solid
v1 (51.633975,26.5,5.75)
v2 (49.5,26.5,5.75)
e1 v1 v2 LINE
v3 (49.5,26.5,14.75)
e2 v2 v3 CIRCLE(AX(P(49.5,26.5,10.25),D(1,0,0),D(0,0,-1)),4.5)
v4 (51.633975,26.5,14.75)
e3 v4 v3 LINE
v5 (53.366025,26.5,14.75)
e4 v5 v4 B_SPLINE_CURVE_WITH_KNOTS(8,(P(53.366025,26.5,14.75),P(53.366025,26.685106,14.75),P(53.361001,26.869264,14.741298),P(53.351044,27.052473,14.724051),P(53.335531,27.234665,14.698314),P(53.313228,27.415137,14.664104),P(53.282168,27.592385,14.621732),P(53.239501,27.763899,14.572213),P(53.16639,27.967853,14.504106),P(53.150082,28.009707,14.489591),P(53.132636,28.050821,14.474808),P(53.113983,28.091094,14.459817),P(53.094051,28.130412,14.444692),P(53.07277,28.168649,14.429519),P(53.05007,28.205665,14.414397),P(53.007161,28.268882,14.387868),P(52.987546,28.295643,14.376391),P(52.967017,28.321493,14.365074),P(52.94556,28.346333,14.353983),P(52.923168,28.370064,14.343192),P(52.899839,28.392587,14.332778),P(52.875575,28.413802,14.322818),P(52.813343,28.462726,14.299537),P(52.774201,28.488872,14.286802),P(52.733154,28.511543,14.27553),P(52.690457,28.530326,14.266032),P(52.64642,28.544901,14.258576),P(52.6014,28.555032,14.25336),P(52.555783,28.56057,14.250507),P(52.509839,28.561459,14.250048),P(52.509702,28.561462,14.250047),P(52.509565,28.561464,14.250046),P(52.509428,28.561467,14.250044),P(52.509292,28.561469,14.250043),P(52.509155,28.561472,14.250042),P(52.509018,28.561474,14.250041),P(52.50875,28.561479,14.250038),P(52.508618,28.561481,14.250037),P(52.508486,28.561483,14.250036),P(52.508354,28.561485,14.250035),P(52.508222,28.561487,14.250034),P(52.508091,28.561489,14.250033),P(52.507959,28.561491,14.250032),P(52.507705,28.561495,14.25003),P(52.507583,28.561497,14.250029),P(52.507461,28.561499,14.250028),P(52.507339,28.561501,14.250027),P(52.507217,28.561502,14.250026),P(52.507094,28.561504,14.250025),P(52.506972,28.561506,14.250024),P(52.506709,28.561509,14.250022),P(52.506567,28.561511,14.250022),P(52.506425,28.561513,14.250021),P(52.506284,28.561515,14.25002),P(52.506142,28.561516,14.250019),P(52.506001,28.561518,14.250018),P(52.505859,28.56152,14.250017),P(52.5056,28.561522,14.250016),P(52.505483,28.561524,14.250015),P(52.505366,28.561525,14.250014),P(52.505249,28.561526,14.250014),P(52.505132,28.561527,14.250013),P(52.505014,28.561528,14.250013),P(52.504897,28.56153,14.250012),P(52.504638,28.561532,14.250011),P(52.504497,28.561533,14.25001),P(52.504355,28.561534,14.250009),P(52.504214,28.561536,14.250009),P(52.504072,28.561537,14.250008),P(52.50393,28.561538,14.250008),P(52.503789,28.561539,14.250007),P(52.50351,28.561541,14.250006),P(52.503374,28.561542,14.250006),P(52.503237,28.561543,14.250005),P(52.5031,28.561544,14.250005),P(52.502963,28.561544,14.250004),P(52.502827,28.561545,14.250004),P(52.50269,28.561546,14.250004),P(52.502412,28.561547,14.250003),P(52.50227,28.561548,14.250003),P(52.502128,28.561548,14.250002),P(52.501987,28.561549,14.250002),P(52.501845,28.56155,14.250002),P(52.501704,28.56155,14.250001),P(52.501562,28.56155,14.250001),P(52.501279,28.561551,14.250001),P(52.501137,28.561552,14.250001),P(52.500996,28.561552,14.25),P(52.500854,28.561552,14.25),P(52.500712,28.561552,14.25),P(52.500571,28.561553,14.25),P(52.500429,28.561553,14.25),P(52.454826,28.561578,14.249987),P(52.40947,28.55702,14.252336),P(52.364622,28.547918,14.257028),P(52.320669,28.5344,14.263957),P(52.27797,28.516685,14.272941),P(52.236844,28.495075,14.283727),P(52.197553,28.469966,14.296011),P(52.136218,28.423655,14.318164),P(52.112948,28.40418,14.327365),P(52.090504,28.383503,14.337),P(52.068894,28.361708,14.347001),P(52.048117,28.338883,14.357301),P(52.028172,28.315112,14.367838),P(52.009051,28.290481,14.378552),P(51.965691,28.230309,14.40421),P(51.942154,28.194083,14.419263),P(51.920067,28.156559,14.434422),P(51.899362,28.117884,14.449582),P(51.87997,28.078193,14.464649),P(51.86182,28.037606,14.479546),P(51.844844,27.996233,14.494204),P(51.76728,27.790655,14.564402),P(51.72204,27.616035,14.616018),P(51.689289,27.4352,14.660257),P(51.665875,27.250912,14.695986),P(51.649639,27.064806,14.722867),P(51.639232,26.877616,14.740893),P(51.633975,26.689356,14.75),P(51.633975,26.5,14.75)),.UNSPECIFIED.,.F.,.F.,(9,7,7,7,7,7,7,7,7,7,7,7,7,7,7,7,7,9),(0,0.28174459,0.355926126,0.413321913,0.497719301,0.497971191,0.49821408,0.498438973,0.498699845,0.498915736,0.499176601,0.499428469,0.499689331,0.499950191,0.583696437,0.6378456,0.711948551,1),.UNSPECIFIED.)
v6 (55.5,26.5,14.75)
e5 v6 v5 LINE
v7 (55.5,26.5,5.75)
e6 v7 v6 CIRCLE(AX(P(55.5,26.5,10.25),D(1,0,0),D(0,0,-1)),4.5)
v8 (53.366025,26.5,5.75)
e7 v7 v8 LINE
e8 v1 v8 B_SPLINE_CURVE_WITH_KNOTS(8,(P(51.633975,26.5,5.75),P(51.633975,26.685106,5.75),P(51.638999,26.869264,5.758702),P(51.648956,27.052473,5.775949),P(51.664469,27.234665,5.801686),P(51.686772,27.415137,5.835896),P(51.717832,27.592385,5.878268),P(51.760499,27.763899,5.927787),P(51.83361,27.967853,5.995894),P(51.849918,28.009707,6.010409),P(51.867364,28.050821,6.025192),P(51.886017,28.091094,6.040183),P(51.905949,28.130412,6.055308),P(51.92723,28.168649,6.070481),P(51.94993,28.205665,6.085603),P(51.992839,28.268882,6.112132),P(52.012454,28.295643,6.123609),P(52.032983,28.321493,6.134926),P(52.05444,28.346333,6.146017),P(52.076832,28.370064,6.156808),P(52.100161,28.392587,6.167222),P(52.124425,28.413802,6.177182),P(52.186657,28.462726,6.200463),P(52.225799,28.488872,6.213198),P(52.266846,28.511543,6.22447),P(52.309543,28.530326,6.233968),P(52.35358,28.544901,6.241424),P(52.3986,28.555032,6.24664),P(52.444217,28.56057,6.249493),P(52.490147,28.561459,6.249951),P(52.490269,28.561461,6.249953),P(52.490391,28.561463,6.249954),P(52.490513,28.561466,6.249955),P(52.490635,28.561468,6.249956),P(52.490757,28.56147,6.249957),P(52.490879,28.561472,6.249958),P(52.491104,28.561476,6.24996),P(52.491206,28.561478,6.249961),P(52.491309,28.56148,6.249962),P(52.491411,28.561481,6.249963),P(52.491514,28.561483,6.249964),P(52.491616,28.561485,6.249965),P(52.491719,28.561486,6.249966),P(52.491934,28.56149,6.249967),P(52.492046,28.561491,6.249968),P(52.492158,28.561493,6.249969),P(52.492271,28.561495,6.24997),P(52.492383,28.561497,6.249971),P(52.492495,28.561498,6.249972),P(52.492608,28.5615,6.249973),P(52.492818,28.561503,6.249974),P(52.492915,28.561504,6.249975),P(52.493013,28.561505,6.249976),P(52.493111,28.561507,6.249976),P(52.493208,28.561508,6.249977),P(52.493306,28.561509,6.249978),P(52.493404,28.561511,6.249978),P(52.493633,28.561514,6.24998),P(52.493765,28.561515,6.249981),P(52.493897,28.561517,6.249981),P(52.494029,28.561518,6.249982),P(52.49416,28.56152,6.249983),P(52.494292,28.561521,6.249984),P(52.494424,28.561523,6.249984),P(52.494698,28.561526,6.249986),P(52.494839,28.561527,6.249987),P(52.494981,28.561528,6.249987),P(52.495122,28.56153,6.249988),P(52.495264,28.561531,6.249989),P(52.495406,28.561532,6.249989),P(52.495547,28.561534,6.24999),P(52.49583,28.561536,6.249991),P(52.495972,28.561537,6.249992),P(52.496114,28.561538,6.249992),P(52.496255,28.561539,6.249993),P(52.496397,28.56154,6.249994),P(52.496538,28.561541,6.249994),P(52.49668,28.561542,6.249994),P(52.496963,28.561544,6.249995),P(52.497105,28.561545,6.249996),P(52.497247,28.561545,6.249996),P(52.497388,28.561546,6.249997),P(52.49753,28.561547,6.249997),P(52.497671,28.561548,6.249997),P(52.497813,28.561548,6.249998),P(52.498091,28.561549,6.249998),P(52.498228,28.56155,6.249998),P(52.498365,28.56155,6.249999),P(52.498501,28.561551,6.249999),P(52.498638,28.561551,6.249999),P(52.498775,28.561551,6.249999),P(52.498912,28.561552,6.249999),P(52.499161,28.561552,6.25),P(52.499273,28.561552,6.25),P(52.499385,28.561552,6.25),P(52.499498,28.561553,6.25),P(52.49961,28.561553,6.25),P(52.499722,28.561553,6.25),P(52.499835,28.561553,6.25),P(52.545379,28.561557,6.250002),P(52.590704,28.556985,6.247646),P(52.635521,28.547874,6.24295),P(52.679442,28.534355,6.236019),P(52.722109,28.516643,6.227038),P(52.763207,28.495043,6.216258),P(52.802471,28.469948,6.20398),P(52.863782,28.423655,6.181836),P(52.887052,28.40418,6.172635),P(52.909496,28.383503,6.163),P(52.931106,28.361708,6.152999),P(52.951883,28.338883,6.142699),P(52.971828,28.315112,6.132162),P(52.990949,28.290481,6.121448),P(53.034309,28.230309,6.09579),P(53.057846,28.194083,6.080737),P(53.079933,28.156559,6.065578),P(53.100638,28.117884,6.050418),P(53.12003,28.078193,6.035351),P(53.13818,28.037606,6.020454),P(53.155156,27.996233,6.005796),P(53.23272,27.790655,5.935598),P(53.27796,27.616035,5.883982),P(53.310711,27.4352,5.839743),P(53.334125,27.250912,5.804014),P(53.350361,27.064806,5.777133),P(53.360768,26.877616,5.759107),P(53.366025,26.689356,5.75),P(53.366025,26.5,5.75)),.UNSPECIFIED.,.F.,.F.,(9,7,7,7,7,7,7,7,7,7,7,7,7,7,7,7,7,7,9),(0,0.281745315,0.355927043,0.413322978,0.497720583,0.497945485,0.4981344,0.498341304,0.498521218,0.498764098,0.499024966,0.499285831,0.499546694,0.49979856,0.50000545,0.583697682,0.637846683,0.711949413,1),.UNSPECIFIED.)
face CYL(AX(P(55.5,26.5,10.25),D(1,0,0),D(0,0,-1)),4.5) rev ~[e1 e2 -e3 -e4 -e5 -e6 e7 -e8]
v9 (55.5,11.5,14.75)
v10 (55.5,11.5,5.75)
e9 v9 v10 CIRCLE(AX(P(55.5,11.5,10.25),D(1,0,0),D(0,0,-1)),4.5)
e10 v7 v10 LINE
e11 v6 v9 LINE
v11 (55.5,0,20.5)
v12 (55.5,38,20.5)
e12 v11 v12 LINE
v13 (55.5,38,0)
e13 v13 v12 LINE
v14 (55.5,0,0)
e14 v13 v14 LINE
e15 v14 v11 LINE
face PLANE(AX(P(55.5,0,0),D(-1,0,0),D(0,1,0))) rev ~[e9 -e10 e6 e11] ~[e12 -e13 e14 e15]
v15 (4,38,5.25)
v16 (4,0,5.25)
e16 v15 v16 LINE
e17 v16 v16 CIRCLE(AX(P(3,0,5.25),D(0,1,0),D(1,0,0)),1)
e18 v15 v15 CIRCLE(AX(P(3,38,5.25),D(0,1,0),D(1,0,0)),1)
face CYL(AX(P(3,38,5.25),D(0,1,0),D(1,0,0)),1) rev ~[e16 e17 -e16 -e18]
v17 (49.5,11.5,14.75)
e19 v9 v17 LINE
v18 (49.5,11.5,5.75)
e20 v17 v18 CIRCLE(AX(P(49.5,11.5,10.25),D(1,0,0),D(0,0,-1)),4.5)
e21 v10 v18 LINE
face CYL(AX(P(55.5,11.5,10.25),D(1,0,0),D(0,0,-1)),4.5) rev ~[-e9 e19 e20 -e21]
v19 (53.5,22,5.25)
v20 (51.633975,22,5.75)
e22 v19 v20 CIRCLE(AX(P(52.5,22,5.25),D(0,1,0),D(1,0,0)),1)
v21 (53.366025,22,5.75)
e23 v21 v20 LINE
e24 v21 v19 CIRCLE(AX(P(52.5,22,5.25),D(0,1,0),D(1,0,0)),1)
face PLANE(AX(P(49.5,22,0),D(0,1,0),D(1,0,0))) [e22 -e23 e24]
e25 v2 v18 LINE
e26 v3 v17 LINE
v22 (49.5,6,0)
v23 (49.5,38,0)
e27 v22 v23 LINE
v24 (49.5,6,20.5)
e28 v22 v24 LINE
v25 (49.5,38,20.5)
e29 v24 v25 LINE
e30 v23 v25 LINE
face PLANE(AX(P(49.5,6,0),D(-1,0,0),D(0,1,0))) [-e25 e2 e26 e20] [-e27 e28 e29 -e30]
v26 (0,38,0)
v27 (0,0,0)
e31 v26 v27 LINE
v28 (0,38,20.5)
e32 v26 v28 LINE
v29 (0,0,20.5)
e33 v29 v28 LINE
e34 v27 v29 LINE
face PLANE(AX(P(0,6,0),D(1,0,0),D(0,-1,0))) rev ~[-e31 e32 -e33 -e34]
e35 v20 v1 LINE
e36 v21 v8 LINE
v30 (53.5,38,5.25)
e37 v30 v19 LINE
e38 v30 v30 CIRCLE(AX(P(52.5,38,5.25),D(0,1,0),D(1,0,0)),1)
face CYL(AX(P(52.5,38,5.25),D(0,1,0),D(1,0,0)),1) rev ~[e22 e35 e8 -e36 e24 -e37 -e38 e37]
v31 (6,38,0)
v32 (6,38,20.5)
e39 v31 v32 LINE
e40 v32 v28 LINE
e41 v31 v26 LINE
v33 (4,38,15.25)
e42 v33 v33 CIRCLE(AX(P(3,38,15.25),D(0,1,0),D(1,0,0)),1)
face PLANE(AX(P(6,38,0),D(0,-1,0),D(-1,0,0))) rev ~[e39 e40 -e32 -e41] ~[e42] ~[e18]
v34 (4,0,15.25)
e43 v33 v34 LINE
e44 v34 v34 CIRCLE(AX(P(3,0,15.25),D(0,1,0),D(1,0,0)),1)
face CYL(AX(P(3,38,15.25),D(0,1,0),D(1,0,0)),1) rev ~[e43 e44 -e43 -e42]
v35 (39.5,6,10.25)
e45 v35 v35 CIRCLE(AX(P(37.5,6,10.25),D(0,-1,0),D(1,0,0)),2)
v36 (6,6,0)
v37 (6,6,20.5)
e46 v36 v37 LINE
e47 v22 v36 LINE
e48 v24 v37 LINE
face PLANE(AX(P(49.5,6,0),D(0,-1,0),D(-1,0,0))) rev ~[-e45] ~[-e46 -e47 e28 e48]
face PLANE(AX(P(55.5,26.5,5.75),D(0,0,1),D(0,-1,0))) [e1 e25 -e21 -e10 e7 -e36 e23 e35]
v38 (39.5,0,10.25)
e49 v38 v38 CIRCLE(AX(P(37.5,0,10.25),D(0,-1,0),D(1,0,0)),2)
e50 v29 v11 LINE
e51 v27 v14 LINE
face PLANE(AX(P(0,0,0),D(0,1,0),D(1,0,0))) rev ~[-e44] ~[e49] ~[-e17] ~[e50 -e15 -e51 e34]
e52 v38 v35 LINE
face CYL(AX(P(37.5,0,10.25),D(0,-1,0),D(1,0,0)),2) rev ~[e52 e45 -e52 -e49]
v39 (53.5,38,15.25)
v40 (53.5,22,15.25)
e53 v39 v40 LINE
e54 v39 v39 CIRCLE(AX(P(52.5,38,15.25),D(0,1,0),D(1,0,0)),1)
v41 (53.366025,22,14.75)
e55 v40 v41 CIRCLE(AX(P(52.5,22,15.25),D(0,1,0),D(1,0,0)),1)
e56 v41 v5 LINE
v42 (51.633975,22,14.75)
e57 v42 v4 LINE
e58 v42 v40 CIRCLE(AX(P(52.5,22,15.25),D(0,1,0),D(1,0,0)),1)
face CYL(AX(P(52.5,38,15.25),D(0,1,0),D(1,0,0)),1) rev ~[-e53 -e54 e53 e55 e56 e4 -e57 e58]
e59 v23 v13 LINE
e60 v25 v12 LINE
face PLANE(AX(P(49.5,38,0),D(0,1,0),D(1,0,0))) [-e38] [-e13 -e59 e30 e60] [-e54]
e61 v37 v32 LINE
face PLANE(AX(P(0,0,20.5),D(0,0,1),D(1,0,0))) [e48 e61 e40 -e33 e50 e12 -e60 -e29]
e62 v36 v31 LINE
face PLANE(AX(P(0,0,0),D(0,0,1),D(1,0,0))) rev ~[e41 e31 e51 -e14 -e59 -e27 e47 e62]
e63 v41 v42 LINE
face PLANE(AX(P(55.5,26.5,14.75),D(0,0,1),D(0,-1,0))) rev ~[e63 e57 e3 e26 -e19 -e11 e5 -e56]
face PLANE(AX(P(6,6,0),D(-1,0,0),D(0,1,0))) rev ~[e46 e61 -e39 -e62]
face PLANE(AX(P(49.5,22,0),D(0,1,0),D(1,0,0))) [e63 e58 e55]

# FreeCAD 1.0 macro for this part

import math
import FreeCAD as App
import Part
import Sketcher

V = App.Vector


def add_polygon(sketch, points):
    """Adds a closed chain of lines whose ends are joined by coincident constraints."""
    first, n = sketch.GeometryCount, len(points)
    for a, b in zip(points, points[1:] + points[:1]):
        sketch.addGeometry(Part.LineSegment(App.Vector(*a, 0), App.Vector(*b, 0)), False)
    for i in range(n):
        sketch.addConstraint(Sketcher.Constraint("Coincident", first + i, 2, first + (i + 1) % n, 1))

doc = App.newDocument("Part")
params = doc.addObject("Spreadsheet::Sheet", "Params")
for row, (alias, value) in enumerate([
    ("sketch1_width", "6 mm"),
    ("sketch1_height", "38 mm"),
    ("sketch1_width2", "55.5 mm"),
    ("pad1_length", "20.5 mm"),
    ("sketch2_radius", "4.5 mm"),
    ("sketch2_width", "15 mm"),
    ("sketch3_diameter", "4 mm"),
    ("sketch4_diameter", "2 mm"),
    ("pocket3_length", "16 mm"),
    ("sketch5_diameter", "2 mm"),
], start=1):
    params.set(f"A{row}", alias)
    params.set(f"B{row}", "=" + value)
    params.setAlias(f"B{row}", alias)

body = doc.addObject("PartDesign::Body", "Body")

# Sketch on XY plane
sketch1 = body.newObject("Sketcher::SketchObject", "Sketch")
sketch1.AttachmentSupport = (doc.getObject("XY_Plane"), [""])
sketch1.MapMode = "FlatFace"
add_polygon(sketch1, [(0, 0), (55.5, 0), (55.5, 38), (49.5, 38), (49.5, 6), (6, 6), (6, 38), (0, 38)])  # lines 0-7
sketch1.addConstraint([
    Sketcher.Constraint("Horizontal", 0),
    Sketcher.Constraint("Vertical", 1),
    Sketcher.Constraint("Horizontal", 2),
    Sketcher.Constraint("Vertical", 3),
    Sketcher.Constraint("Horizontal", 4),
    Sketcher.Constraint("Vertical", 5),
    Sketcher.Constraint("Horizontal", 6),
    Sketcher.Constraint("Vertical", 7),
    Sketcher.Constraint("Coincident", 7, 2, -1, 1),
    Sketcher.Constraint("Horizontal", 2, 2, 5, 2),
    Sketcher.Constraint("Equal", 2, 6),
    Sketcher.Constraint("DistanceX", 2, 2, 2, 1, 6.0),
    Sketcher.Constraint("DistanceY", 1, 1, 1, 2, 38.0),
    Sketcher.Constraint("DistanceX", 0, 1, 0, 2, 55.5),
    Sketcher.Constraint("DistanceY", -1, 1, 3, 2, 6.0),
])
sketch1.setExpression("Constraints[19]", "Params.sketch1_width")
sketch1.setExpression("Constraints[20]", "Params.sketch1_height")
sketch1.setExpression("Constraints[21]", "Params.sketch1_width2")
pad1 = body.newObject("PartDesign::Pad", "Pad")
pad1.Profile = sketch1
pad1.setExpression("Length", "Params.pad1_length")

# Sketch on YZ plane
sketch2 = body.newObject("Sketcher::SketchObject", "Sketch001")
sketch2.AttachmentSupport = (doc.getObject("YZ_Plane"), [""])
sketch2.MapMode = "FlatFace"
sketch2.AttachmentOffset = App.Placement(V(0, 0, 55.5), App.Rotation())
sketch2.addGeometry([
    Part.ArcOfCircle(Part.Circle(V(26.5, 10.25, 0), V(0, 0, 1), 4.5), math.radians(-90), math.radians(90)),
    Part.LineSegment(V(26.5, 14.75, 0), V(11.5, 14.75, 0)),
    Part.ArcOfCircle(Part.Circle(V(11.5, 10.25, 0), V(0, 0, 1), 4.5), math.radians(90), math.radians(270)),
    Part.LineSegment(V(11.5, 5.75, 0), V(26.5, 5.75, 0)),
], False)
sketch2.addConstraint([
    Sketcher.Constraint("Tangent", 0, 2, 1, 1),
    Sketcher.Constraint("Tangent", 1, 2, 2, 1),
    Sketcher.Constraint("Tangent", 2, 2, 3, 1),
    Sketcher.Constraint("Tangent", 3, 2, 0, 1),
    Sketcher.Constraint("Horizontal", 1),
    Sketcher.Constraint("Horizontal", 3),
    Sketcher.Constraint("Radius", 0, 4.5),
    Sketcher.Constraint("DistanceX", -1, 1, 2, 3, 11.5),
    Sketcher.Constraint("DistanceX", 1, 2, 1, 1, 15.0),
    Sketcher.Constraint("DistanceY", -1, 1, 0, 3, 10.25),
])
sketch2.setExpression("Constraints[6]", "Params.sketch2_radius")
sketch2.setExpression("Constraints[8]", "Params.sketch2_width")
pocket1 = body.newObject("PartDesign::Pocket", "Pocket")
pocket1.Profile = sketch2
pocket1.Type = "UpToFirst"

# Sketch on XZ plane
sketch3 = body.newObject("Sketcher::SketchObject", "Sketch002")
sketch3.AttachmentSupport = (doc.getObject("XZ_Plane"), [""])
sketch3.MapMode = "FlatFace"
sketch3.addGeometry(Part.Circle(V(37.5, 10.25, 0), V(0, 0, 1), 2), False)
sketch3.addConstraint([
    Sketcher.Constraint("Diameter", 0, 4.0),
    Sketcher.Constraint("DistanceX", -1, 1, 0, 3, 37.5),
    Sketcher.Constraint("DistanceY", -1, 1, 0, 3, 10.25),
])
sketch3.setExpression("Constraints[0]", "Params.sketch3_diameter")
pocket2 = body.newObject("PartDesign::Pocket", "Pocket001")
pocket2.Profile = sketch3
pocket2.Type = "UpToFirst"

# Sketch on XZ plane
sketch4 = body.newObject("Sketcher::SketchObject", "Sketch003")
sketch4.AttachmentSupport = (doc.getObject("XZ_Plane"), [""])
sketch4.MapMode = "FlatFace"
sketch4.AttachmentOffset = App.Placement(V(0, 0, -38), App.Rotation())
sketch4.addGeometry([
    Part.Circle(V(52.5, 15.25, 0), V(0, 0, 1), 1),
    Part.Circle(V(52.5, 5.25, 0), V(0, 0, 1), 1),
], False)
sketch4.addConstraint([
    Sketcher.Constraint("Equal", 0, 1),
    Sketcher.Constraint("Vertical", 0, 3, 1, 3),
    Sketcher.Constraint("Diameter", 0, 2.0),
    Sketcher.Constraint("DistanceY", 1, 3, 0, 3, 10.0),
    Sketcher.Constraint("DistanceX", -1, 1, 0, 3, 52.5),
    Sketcher.Constraint("DistanceY", -1, 1, 0, 3, 15.25),
])
sketch4.setExpression("Constraints[2]", "Params.sketch4_diameter")
pocket3 = body.newObject("PartDesign::Pocket", "Pocket002")
pocket3.Profile = sketch4
pocket3.setExpression("Length", "Params.pocket3_length")
pocket3.Reversed = True

# Sketch on XZ plane
sketch5 = body.newObject("Sketcher::SketchObject", "Sketch004")
sketch5.AttachmentSupport = (doc.getObject("XZ_Plane"), [""])
sketch5.MapMode = "FlatFace"
sketch5.AttachmentOffset = App.Placement(V(0, 0, -38), App.Rotation())
sketch5.addGeometry([
    Part.Circle(V(3, 5.25, 0), V(0, 0, 1), 1),
    Part.Circle(V(3, 15.25, 0), V(0, 0, 1), 1),
], False)
sketch5.addConstraint([
    Sketcher.Constraint("Equal", 0, 1),
    Sketcher.Constraint("Vertical", 0, 3, 1, 3),
    Sketcher.Constraint("Diameter", 0, 2.0),
    Sketcher.Constraint("DistanceX", -1, 1, 0, 3, 3.0),
    Sketcher.Constraint("DistanceY", 0, 3, 1, 3, 10.0),
    Sketcher.Constraint("DistanceY", -1, 1, 0, 3, 5.25),
])
sketch5.setExpression("Constraints[2]", "Params.sketch5_diameter")
pocket4 = body.newObject("PartDesign::Pocket", "Pocket003")
pocket4.Profile = sketch5
pocket4.Type = "UpToFirst"
pocket4.Reversed = True

doc.recompute()
